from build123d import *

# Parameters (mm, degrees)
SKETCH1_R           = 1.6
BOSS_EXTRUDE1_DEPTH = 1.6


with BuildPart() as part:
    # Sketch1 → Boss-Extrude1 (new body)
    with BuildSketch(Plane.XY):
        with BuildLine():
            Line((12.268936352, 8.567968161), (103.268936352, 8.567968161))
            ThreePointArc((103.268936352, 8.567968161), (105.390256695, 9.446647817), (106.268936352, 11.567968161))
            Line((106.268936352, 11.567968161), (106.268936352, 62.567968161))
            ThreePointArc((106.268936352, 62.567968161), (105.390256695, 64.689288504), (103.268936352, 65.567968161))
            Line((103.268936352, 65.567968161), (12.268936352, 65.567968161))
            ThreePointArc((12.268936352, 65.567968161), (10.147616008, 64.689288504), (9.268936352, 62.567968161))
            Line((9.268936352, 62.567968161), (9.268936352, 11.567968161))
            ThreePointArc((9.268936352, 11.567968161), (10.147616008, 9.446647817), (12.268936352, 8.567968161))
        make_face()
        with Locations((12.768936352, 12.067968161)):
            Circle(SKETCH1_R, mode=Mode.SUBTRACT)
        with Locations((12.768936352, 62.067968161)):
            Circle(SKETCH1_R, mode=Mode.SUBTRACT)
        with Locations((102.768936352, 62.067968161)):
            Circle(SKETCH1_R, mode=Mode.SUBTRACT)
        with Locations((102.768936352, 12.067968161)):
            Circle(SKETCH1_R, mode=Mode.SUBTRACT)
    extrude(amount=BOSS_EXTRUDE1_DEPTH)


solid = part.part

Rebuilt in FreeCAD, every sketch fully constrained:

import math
import FreeCAD as App
import Part
import Sketcher
from FreeCAD import Vector
Q = App.Units.Quantity

doc = App.newDocument("Part")
body = doc.addObject("PartDesign::Body", "Body")

sketch1 = doc.addObject("Sketcher::SketchObject", "Sketch")
body.addObject(sketch1)
sketch1.AttachmentSupport = (doc.XY_Plane, [""])
sketch1.MapMode = "FlatFace"
sketch1.addGeometry([
    Part.LineSegment(Vector(12.268936, 8.567968, 0), Vector(103.268936, 8.567968, 0)),
    Part.ArcOfCircle(Part.Circle(Vector(103.268936, 11.567968, 0), Vector(0, 0, 1), 3), math.radians(-90), math.radians(0)),
    Part.LineSegment(Vector(106.268936, 11.567968, 0), Vector(106.268936, 62.567968, 0)),
    Part.ArcOfCircle(Part.Circle(Vector(103.268936, 62.567968, 0), Vector(0, 0, 1), 3), math.radians(0), math.radians(90)),
    Part.LineSegment(Vector(103.268936, 65.567968, 0), Vector(12.268936, 65.567968, 0)),
    Part.ArcOfCircle(Part.Circle(Vector(12.268936, 62.567968, 0), Vector(0, 0, 1), 3), math.radians(90), math.radians(180)),
    Part.LineSegment(Vector(9.268936, 62.567968, 0), Vector(9.268936, 11.567968, 0)),
    Part.ArcOfCircle(Part.Circle(Vector(12.268936, 11.567968, 0), Vector(0, 0, 1), 3), math.radians(180), math.radians(270)),
    Part.Circle(Vector(12.768936, 12.067968, 0), Vector(0, 0, 1), 1.6),
    Part.Circle(Vector(102.768936, 12.067968, 0), Vector(0, 0, 1), 1.6),
    Part.Circle(Vector(12.768936, 62.067968, 0), Vector(0, 0, 1), 1.6),
    Part.Circle(Vector(102.768936, 62.067968, 0), Vector(0, 0, 1), 1.6),
], False)
sketch1.addConstraint([
    Sketcher.Constraint("Tangent", 0, 2, 1, 1),
    Sketcher.Constraint("Tangent", 1, 2, 2, 1),
    Sketcher.Constraint("Tangent", 2, 2, 3, 1),
    Sketcher.Constraint("Tangent", 3, 2, 4, 1),
    Sketcher.Constraint("Tangent", 4, 2, 5, 1),
    Sketcher.Constraint("Tangent", 5, 2, 6, 1),
    Sketcher.Constraint("Tangent", 6, 2, 7, 1),
    Sketcher.Constraint("Tangent", 7, 2, 0, 1),
    Sketcher.Constraint("Horizontal", 0),
    Sketcher.Constraint("Vertical", 2),
    Sketcher.Constraint("Horizontal", 4),
    Sketcher.Constraint("Vertical", 6),
    Sketcher.Constraint("Equal", 1, 3),
    Sketcher.Constraint("Equal", 3, 5),
    Sketcher.Constraint("Equal", 5, 7),
    Sketcher.Constraint("Equal", 8, 9),
    Sketcher.Constraint("Equal", 9, 10),
    Sketcher.Constraint("Equal", 10, 11),
    Sketcher.Constraint("Horizontal", 8, 3, 9, 3),
    Sketcher.Constraint("Horizontal", 10, 3, 11, 3),
    Sketcher.Constraint("Vertical", 8, 3, 10, 3),
    Sketcher.Constraint("Vertical", 9, 3, 11, 3),
    Sketcher.Constraint("Radius", 1, Q("3 mm")),
    Sketcher.Constraint("Diameter", 8, Q("3.2 mm")),
    Sketcher.Constraint("DistanceX", 0, 1, 0, 2, Q("91 mm")),
    Sketcher.Constraint("DistanceY", 2, 1, 2, 2, Q("51 mm")),
    Sketcher.Constraint("DistanceX", 8, 3, 9, 3, Q("90 mm")),
    Sketcher.Constraint("DistanceY", 8, 3, 10, 3, Q("50 mm")),
    Sketcher.Constraint("DistanceX", 7, 3, 8, 3, Q("0.5 mm")),
    Sketcher.Constraint("DistanceY", 7, 3, 8, 3, Q("0.5 mm")),
    Sketcher.Constraint("DistanceY", -1, 1, 1, 3, Q("11.567968 mm")),
    Sketcher.Constraint("DistanceX", -1, 1, 1, 3, Q("103.268936 mm")),
])
pad1 = doc.addObject("PartDesign::Pad", "Pad")
body.addObject(pad1)
pad1.Profile = sketch1
pad1.Length = 1.6

doc.recompute()
